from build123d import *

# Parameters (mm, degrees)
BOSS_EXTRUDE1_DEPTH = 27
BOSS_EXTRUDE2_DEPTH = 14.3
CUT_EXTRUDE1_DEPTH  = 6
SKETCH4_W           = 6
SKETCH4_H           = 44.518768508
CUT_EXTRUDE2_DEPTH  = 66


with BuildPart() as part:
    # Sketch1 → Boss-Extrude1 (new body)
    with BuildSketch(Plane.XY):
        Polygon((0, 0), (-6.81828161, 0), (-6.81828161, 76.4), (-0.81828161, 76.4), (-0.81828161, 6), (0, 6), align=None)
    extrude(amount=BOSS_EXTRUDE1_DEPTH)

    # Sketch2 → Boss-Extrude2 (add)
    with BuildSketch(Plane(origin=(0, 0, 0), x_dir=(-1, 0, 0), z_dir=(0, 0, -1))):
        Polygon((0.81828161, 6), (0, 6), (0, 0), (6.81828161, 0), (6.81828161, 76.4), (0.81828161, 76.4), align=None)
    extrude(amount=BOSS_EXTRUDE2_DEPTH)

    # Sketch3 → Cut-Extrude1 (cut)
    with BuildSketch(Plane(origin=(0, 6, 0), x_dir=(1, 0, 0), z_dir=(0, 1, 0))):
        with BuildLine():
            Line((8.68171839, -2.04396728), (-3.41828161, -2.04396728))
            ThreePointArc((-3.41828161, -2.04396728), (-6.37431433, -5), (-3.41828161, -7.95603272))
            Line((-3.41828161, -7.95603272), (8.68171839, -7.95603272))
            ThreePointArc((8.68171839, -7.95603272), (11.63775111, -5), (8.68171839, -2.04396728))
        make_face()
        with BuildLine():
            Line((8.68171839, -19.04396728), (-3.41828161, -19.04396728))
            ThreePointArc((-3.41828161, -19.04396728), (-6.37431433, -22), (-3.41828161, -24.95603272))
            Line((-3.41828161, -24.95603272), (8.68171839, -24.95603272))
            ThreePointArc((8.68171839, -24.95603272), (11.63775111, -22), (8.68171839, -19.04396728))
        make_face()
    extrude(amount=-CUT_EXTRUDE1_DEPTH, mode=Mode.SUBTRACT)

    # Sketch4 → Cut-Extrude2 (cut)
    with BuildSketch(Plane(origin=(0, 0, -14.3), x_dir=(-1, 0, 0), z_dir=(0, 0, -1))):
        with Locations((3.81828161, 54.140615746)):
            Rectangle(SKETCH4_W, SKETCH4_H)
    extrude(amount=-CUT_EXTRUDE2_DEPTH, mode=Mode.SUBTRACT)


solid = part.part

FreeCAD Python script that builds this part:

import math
import FreeCAD as App
import Part
import Sketcher
Q = App.Units.Quantity


def add_polygon(sketch, points):
    """Adds a closed chain of lines whose ends are joined by coincident constraints."""
    first, n = sketch.GeometryCount, len(points)
    for a, b in zip(points, points[1:] + points[:1]):
        sketch.addGeometry(Part.LineSegment(App.Vector(*a, 0), App.Vector(*b, 0)), False)
    for i in range(n):
        sketch.addConstraint(Sketcher.Constraint("Coincident", first + i, 2, first + (i + 1) % n, 1))

doc = App.newDocument("Part")
body = doc.addObject("PartDesign::Body", "Body")

# Sketch on XY plane
sketch1 = body.newObject("Sketcher::SketchObject", "Sketch")
sketch1.AttachmentSupport = (doc.getObject("XY_Plane"), [""])
sketch1.MapMode = "FlatFace"
add_polygon(sketch1, [(-6.818282, 0), (0, 0), (0, 6), (-0.818282, 6), (-0.818282, 76.4), (-6.818282, 76.4)])  # lines 0-5
sketch1.addConstraint([
    Sketcher.Constraint("Horizontal", 0),
    Sketcher.Constraint("Vertical", 1),
    Sketcher.Constraint("Horizontal", 2),
    Sketcher.Constraint("Vertical", 3),
    Sketcher.Constraint("Horizontal", 4),
    Sketcher.Constraint("Vertical", 5),
    Sketcher.Constraint("Coincident", 0, 2, -1, 1),
    Sketcher.Constraint("Equal", 4, 1),
    Sketcher.Constraint("DistanceX", 4, 2, 4, 1, Q("6 mm")),
    Sketcher.Constraint("DistanceY", 3, 1, 3, 2, Q("70.4 mm")),
    Sketcher.Constraint("DistanceX", 0, 1, 0, 2, Q("6.818282 mm")),
])
pad1 = body.newObject("PartDesign::Pad", "Pad")
pad1.Profile = sketch1
pad1.Length = 27

# Sketch on XY plane
sketch2 = body.newObject("Sketcher::SketchObject", "Sketch001")
sketch2.AttachmentSupport = (doc.getObject("XY_Plane"), [""])
sketch2.MapMode = "FlatFace"
add_polygon(sketch2, [(-0.818282, 6), (0, 6), (0, 0), (-6.818282, 0), (-6.818282, 76.4), (-0.818282, 76.4)])  # lines 0-5
sketch2.addConstraint([
    Sketcher.Constraint("Horizontal", 0),
    Sketcher.Constraint("Vertical", 1),
    Sketcher.Constraint("Horizontal", 2),
    Sketcher.Constraint("Vertical", 3),
    Sketcher.Constraint("Horizontal", 4),
    Sketcher.Constraint("Vertical", 5),
    Sketcher.Constraint("Coincident", 1, 2, -1, 1),
    Sketcher.Constraint("Equal", 4, 1),
    Sketcher.Constraint("DistanceX", 4, 1, 4, 2, Q("6 mm")),
    Sketcher.Constraint("DistanceY", 3, 1, 3, 2, Q("76.4 mm")),
    Sketcher.Constraint("DistanceX", 0, 1, 0, 2, Q("0.818282 mm")),
])
pad2 = body.newObject("PartDesign::Pad", "Pad001")
pad2.Profile = sketch2
pad2.Length = 14.3
pad2.Reversed = True

# Sketch on XZ plane
sketch3 = body.newObject("Sketcher::SketchObject", "Sketch002")
sketch3.AttachmentSupport = (doc.getObject("XZ_Plane"), [""])
sketch3.MapMode = "FlatFace"
sketch3.AttachmentOffset = App.Placement(App.Vector(0, 0, -6), App.Rotation())
sketch3.addGeometry([
    Part.LineSegment(App.Vector(8.681718, 2.043967, 0), App.Vector(-3.418282, 2.043967, 0)),  # 0
    Part.ArcOfCircle(Part.Circle(App.Vector(-3.418282, 5, 0), App.Vector(0, 0, 1), 2.956033), math.radians(90), math.radians(270)),  # 1
    Part.LineSegment(App.Vector(-3.418282, 7.956033, 0), App.Vector(8.681718, 7.956033, 0)),  # 2
    Part.ArcOfCircle(Part.Circle(App.Vector(8.681718, 5, 0), App.Vector(0, 0, 1), 2.956033), math.radians(-90), math.radians(90)),  # 3
    Part.LineSegment(App.Vector(8.681718, 19.043967, 0), App.Vector(-3.418282, 19.043967, 0)),  # 4
    Part.ArcOfCircle(Part.Circle(App.Vector(-3.418282, 22, 0), App.Vector(0, 0, 1), 2.956033), math.radians(90), math.radians(270)),  # 5
    Part.LineSegment(App.Vector(-3.418282, 24.956033, 0), App.Vector(8.681718, 24.956033, 0)),  # 6
    Part.ArcOfCircle(Part.Circle(App.Vector(8.681718, 22, 0), App.Vector(0, 0, 1), 2.956033), math.radians(-90), math.radians(90)),  # 7
], False)
sketch3.addConstraint([
    Sketcher.Constraint("Tangent", 0, 2, 1, 2),
    Sketcher.Constraint("Tangent", 1, 1, 2, 1),
    Sketcher.Constraint("Tangent", 2, 2, 3, 2),
    Sketcher.Constraint("Tangent", 3, 1, 0, 1),
    Sketcher.Constraint("Tangent", 4, 2, 5, 2),
    Sketcher.Constraint("Tangent", 5, 1, 6, 1),
    Sketcher.Constraint("Tangent", 6, 2, 7, 2),
    Sketcher.Constraint("Tangent", 7, 1, 4, 1),
    Sketcher.Constraint("Horizontal", 0),
    Sketcher.Constraint("Horizontal", 2),
    Sketcher.Constraint("Horizontal", 4),
    Sketcher.Constraint("Horizontal", 6),
    Sketcher.Constraint("Equal", 3, 5),
    Sketcher.Constraint("Vertical", 1, 3, 5, 3),
    Sketcher.Constraint("Vertical", 3, 3, 7, 3),
    Sketcher.Constraint("DistanceX", 0, 2, 0, 1, Q("12.1 mm")),
    Sketcher.Constraint("DistanceY", -1, 1, 1, 3, Q("5 mm")),
    Sketcher.Constraint("DistanceY", -1, 1, 5, 3, Q("22 mm")),
    Sketcher.Constraint("Radius", 1, Q("2.956033 mm")),
    Sketcher.Constraint("DistanceX", 1, 3, -1, 1, Q("3.418282 mm")),
])
pocket1 = body.newObject("PartDesign::Pocket", "Pocket")
pocket1.Profile = sketch3
pocket1.Length = 6
pocket1.Reversed = True

# Sketch on XY plane
sketch4 = body.newObject("Sketcher::SketchObject", "Sketch003")
sketch4.AttachmentSupport = (doc.getObject("XY_Plane"), [""])
sketch4.MapMode = "FlatFace"
sketch4.AttachmentOffset = App.Placement(App.Vector(0, 0, -14.3), App.Rotation())
add_polygon(sketch4, [(-0.818282, 76.4), (-0.818282, 31.881231), (-6.818282, 31.881231), (-6.818282, 76.4)])  # lines 0-3
sketch4.addConstraint([
    Sketcher.Constraint("Vertical", 0),
    Sketcher.Constraint("Horizontal", 1),
    Sketcher.Constraint("Vertical", 2),
    Sketcher.Constraint("Horizontal", 3),
    Sketcher.Constraint("DistanceX", 1, 2, 1, 1, Q("6 mm")),
    Sketcher.Constraint("DistanceY", -1, 1, 2, 2, Q("76.4 mm")),
    Sketcher.Constraint("DistanceY", 0, 2, 0, 1, Q("44.518769 mm")),
    Sketcher.Constraint("DistanceX", 0, 2, -1, 1, Q("0.818282 mm")),
])
pocket2 = body.newObject("PartDesign::Pocket", "Pocket001")
pocket2.Profile = sketch4
pocket2.Length = 66
pocket2.Reversed = True

doc.recompute()
